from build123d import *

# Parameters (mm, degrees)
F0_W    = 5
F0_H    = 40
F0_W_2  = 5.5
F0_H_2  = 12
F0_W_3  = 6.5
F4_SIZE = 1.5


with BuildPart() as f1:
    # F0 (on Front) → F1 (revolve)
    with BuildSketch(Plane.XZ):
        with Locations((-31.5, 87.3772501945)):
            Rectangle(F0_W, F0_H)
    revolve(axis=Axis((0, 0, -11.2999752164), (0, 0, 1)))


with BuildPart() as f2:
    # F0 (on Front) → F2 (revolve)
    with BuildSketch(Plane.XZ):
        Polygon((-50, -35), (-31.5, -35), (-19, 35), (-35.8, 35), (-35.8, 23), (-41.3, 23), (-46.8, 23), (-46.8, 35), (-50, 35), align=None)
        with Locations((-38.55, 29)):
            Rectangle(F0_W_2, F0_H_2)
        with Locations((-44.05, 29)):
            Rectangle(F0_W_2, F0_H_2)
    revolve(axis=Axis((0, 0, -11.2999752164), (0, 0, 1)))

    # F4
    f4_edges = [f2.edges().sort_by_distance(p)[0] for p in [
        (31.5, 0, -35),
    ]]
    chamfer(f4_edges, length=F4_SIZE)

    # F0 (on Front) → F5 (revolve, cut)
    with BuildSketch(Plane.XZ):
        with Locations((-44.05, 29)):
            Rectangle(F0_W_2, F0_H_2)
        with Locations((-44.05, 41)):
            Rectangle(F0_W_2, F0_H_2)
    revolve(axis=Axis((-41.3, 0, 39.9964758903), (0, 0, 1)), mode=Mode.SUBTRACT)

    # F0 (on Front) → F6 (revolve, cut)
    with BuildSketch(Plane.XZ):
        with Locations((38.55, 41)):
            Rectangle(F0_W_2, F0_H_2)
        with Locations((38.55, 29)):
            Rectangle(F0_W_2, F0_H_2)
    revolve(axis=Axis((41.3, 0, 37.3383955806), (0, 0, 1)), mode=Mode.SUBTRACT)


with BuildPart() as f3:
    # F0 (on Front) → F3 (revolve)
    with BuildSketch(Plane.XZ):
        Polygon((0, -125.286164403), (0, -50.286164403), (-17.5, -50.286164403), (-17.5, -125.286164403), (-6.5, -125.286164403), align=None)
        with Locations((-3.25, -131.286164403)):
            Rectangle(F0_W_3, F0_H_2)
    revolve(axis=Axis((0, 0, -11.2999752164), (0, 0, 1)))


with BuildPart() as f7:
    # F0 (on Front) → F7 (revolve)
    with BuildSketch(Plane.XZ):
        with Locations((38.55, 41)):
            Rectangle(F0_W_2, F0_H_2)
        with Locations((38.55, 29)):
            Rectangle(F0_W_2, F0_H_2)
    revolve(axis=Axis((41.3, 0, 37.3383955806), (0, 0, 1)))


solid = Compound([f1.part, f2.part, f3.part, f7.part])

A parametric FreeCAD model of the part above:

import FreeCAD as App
import Part
import Sketcher

V = App.Vector


def edges_at(feature, points):
    """Names of the edges that pass closest to the given points."""
    edges = feature.Shape.Edges
    near = lambda p: min(range(len(edges)), key=lambda i: edges[i].distToShape(Part.Vertex(*p))[0])
    return sorted({f"Edge{near(p) + 1}" for p in points})

doc = App.newDocument("Part")
body = doc.addObject("PartDesign::Body", "Body")

sketch1 = body.newObject("Sketcher::SketchObject", "Sketch")
sketch1.AttachmentSupport = (doc.getObject("XZ_Plane"), [""])
sketch1.MapMode = "FlatFace"
sketch1.addGeometry(Part.LineSegment(V(-34, 107, 0), V(-34, 67, 0)), False)
sketch1.addGeometry(Part.LineSegment(V(-34, 67, 0), V(-29, 67, 0)), False)
sketch1.addGeometry(Part.LineSegment(V(-29, 67, 0), V(-29, 107, 0)), False)
sketch1.addGeometry(Part.LineSegment(V(-29, 107, 0), V(-34, 107, 0)), False)
sketch1.addConstraint(Sketcher.Constraint("Coincident", 0, 2, 1, 1))
sketch1.addConstraint(Sketcher.Constraint("Coincident", 1, 2, 2, 1))
sketch1.addConstraint(Sketcher.Constraint("Coincident", 2, 2, 3, 1))
sketch1.addConstraint(Sketcher.Constraint("Coincident", 3, 2, 0, 1))
sketch1.addConstraint(Sketcher.Constraint("Vertical", 0))
sketch1.addConstraint(Sketcher.Constraint("Horizontal", 1))
sketch1.addConstraint(Sketcher.Constraint("Vertical", 2))
sketch1.addConstraint(Sketcher.Constraint("Horizontal", 3))
sketch1.addConstraint(Sketcher.Constraint("DistanceX", 1, 1, 1, 2, 5.0))
sketch1.addConstraint(Sketcher.Constraint("DistanceY", 0, 2, 0, 1, 40.0))
sketch1.addConstraint(Sketcher.Constraint("DistanceX", 0, 2, -1, 1, 34.0))
sketch1.addConstraint(Sketcher.Constraint("DistanceY", -1, 1, 0, 2, 67.37725))
revolution = body.newObject("PartDesign::Revolution", "Revolution")
revolution.Profile = sketch1
revolution.ReferenceAxis = (sketch1, ["V_Axis"])
revolution.Angle = 360
body2 = doc.addObject("PartDesign::Body", "Body001")

sketch2 = body2.newObject("Sketcher::SketchObject", "Sketch001")
sketch2.AttachmentSupport = (doc.getObject("XZ_Plane001"), [""])
sketch2.MapMode = "FlatFace"
sketch2.addGeometry(Part.LineSegment(V(-50, -35, 0), V(-32, -35, 0)), False)
sketch2.addGeometry(Part.LineSegment(V(-32, -35, 0), V(-19, 35, 0)), False)
sketch2.addGeometry(Part.LineSegment(V(-19, 35, 0), V(-50, 35, 0)), False)
sketch2.addGeometry(Part.LineSegment(V(-50, 35, 0), V(-50, -35, 0)), False)
sketch2.addConstraint(Sketcher.Constraint("Coincident", 0, 2, 1, 1))
sketch2.addConstraint(Sketcher.Constraint("Coincident", 1, 2, 2, 1))
sketch2.addConstraint(Sketcher.Constraint("Coincident", 2, 2, 3, 1))
sketch2.addConstraint(Sketcher.Constraint("Coincident", 3, 2, 0, 1))
sketch2.addConstraint(Sketcher.Constraint("Horizontal", 0))
sketch2.addConstraint(Sketcher.Constraint("Horizontal", 2))
sketch2.addConstraint(Sketcher.Constraint("Vertical", 3))
sketch2.addConstraint(Sketcher.Constraint("DistanceX", 2, 2, 2, 1, 31.0))
sketch2.addConstraint(Sketcher.Constraint("DistanceY", 3, 2, 3, 1, 70.0))
sketch2.addConstraint(Sketcher.Constraint("DistanceX", 0, 1, 0, 2, 18.5))
sketch2.addConstraint(Sketcher.Constraint("DistanceY", 0, 2, -1, 1, 35.0))
sketch2.addConstraint(Sketcher.Constraint("DistanceX", 1, 2, -1, 1, 19.0))
revolution2 = body2.newObject("PartDesign::Revolution", "Revolution001")
revolution2.Profile = sketch2
revolution2.ReferenceAxis = (sketch2, ["V_Axis"])
revolution2.Angle = 360
doc.recompute()

chamfer = body2.newObject("PartDesign::Chamfer", "Chamfer")
chamfer.Base = (revolution2, edges_at(revolution2, [(31.5, 0, -35)]))
chamfer.Size = 1.5

sketch3 = body2.newObject("Sketcher::SketchObject", "Sketch002")
sketch3.AttachmentSupport = (doc.getObject("XZ_Plane001"), [""])
sketch3.MapMode = "FlatFace"
sketch3.addGeometry(Part.LineSegment(V(-47, 23, 0), V(-41, 23, 0)), False)
sketch3.addGeometry(Part.LineSegment(V(-41, 23, 0), V(-41, 47, 0)), False)
sketch3.addGeometry(Part.LineSegment(V(-41, 47, 0), V(-47, 47, 0)), False)
sketch3.addGeometry(Part.LineSegment(V(-47, 47, 0), V(-47, 23, 0)), False)
sketch3.addGeometry(Part.LineSegment(V(-41, 23, 0), V(-41, 47, 0)), True)
sketch3.addConstraint(Sketcher.Constraint("Coincident", 0, 2, 1, 1))
sketch3.addConstraint(Sketcher.Constraint("Coincident", 1, 2, 2, 1))
sketch3.addConstraint(Sketcher.Constraint("Coincident", 2, 2, 3, 1))
sketch3.addConstraint(Sketcher.Constraint("Coincident", 3, 2, 0, 1))
sketch3.addConstraint(Sketcher.Constraint("Horizontal", 0))
sketch3.addConstraint(Sketcher.Constraint("Vertical", 1))
sketch3.addConstraint(Sketcher.Constraint("Horizontal", 2))
sketch3.addConstraint(Sketcher.Constraint("Vertical", 3))
sketch3.addConstraint(Sketcher.Constraint("Vertical", 4))
sketch3.addConstraint(Sketcher.Constraint("Coincident", 4, 1, 0, 2))
sketch3.addConstraint(Sketcher.Constraint("Horizontal", 2, 2, 4, 2))
sketch3.addConstraint(Sketcher.Constraint("DistanceY", 1, 1, 1, 2, 24.0))
sketch3.addConstraint(Sketcher.Constraint("DistanceX", 0, 1, 0, 2, 5.5))
sketch3.addConstraint(Sketcher.Constraint("DistanceY", -1, 1, 0, 2, 23.0))
sketch3.addConstraint(Sketcher.Constraint("DistanceX", 0, 2, -1, 1, 41.3))
groove = body2.newObject("PartDesign::Groove", "Groove")
groove.Profile = sketch3
groove.ReferenceAxis = (sketch3, ["Axis0"])
groove.Angle = 360

sketch4 = body2.newObject("Sketcher::SketchObject", "Sketch003")
sketch4.AttachmentSupport = (doc.getObject("XZ_Plane001"), [""])
sketch4.MapMode = "FlatFace"
sketch4.addGeometry(Part.LineSegment(V(36, 47, 0), V(36, 23, 0)), False)
sketch4.addGeometry(Part.LineSegment(V(36, 23, 0), V(41, 23, 0)), False)
sketch4.addGeometry(Part.LineSegment(V(41, 23, 0), V(41, 47, 0)), False)
sketch4.addGeometry(Part.LineSegment(V(41, 47, 0), V(36, 47, 0)), False)
sketch4.addGeometry(Part.LineSegment(V(41, 23, 0), V(41, 47, 0)), True)
sketch4.addConstraint(Sketcher.Constraint("Coincident", 0, 2, 1, 1))
sketch4.addConstraint(Sketcher.Constraint("Coincident", 1, 2, 2, 1))
sketch4.addConstraint(Sketcher.Constraint("Coincident", 2, 2, 3, 1))
sketch4.addConstraint(Sketcher.Constraint("Coincident", 3, 2, 0, 1))
sketch4.addConstraint(Sketcher.Constraint("Vertical", 0))
sketch4.addConstraint(Sketcher.Constraint("Horizontal", 1))
sketch4.addConstraint(Sketcher.Constraint("Vertical", 2))
sketch4.addConstraint(Sketcher.Constraint("Horizontal", 3))
sketch4.addConstraint(Sketcher.Constraint("Vertical", 4))
sketch4.addConstraint(Sketcher.Constraint("Coincident", 4, 1, 1, 2))
sketch4.addConstraint(Sketcher.Constraint("Horizontal", 3, 2, 4, 2))
sketch4.addConstraint(Sketcher.Constraint("DistanceY", 0, 2, 0, 1, 24.0))
sketch4.addConstraint(Sketcher.Constraint("DistanceX", 1, 1, 1, 2, 5.5))
sketch4.addConstraint(Sketcher.Constraint("DistanceY", -1, 1, 0, 2, 23.0))
sketch4.addConstraint(Sketcher.Constraint("DistanceX", -1, 1, 0, 2, 35.8))
groove2 = body2.newObject("PartDesign::Groove", "Groove001")
groove2.Profile = sketch4
groove2.ReferenceAxis = (sketch4, ["Axis0"])
groove2.Angle = 360
body3 = doc.addObject("PartDesign::Body", "Body002")

sketch5 = body3.newObject("Sketcher::SketchObject", "Sketch004")
sketch5.AttachmentSupport = (doc.getObject("XZ_Plane002"), [""])
sketch5.MapMode = "FlatFace"
sketch5.addGeometry(Part.LineSegment(V(0, -50, 0), V(-18, -50, 0)), False)
sketch5.addGeometry(Part.LineSegment(V(-18, -50, 0), V(-18, -125, 0)), False)
sketch5.addGeometry(Part.LineSegment(V(-18, -125, 0), V(-6, -125, 0)), False)
sketch5.addGeometry(Part.LineSegment(V(-6, -125, 0), V(-6, -137, 0)), False)
sketch5.addGeometry(Part.LineSegment(V(-6, -137, 0), V(0, -137, 0)), False)
sketch5.addGeometry(Part.LineSegment(V(0, -137, 0), V(0, -50, 0)), False)
sketch5.addConstraint(Sketcher.Constraint("Coincident", 0, 2, 1, 1))
sketch5.addConstraint(Sketcher.Constraint("Coincident", 1, 2, 2, 1))
sketch5.addConstraint(Sketcher.Constraint("Coincident", 2, 2, 3, 1))
sketch5.addConstraint(Sketcher.Constraint("Coincident", 3, 2, 4, 1))
sketch5.addConstraint(Sketcher.Constraint("Coincident", 4, 2, 5, 1))
sketch5.addConstraint(Sketcher.Constraint("Coincident", 5, 2, 0, 1))
sketch5.addConstraint(Sketcher.Constraint("Horizontal", 0))
sketch5.addConstraint(Sketcher.Constraint("Vertical", 1))
sketch5.addConstraint(Sketcher.Constraint("Horizontal", 2))
sketch5.addConstraint(Sketcher.Constraint("Vertical", 3))
sketch5.addConstraint(Sketcher.Constraint("Horizontal", 4))
sketch5.addConstraint(Sketcher.Constraint("Vertical", 5))
sketch5.addConstraint(Sketcher.Constraint("PointOnObject", 4, 2, -2))
sketch5.addConstraint(Sketcher.Constraint("DistanceX", 2, 1, 2, 2, 11.0))
sketch5.addConstraint(Sketcher.Constraint("DistanceY", 1, 2, 1, 1, 75.0))
sketch5.addConstraint(Sketcher.Constraint("DistanceY", 3, 2, 3, 1, 12.0))
sketch5.addConstraint(Sketcher.Constraint("DistanceX", 0, 2, 0, 1, 17.5))
sketch5.addConstraint(Sketcher.Constraint("DistanceY", 0, 2, -1, 1, 50.286164))
revolution3 = body3.newObject("PartDesign::Revolution", "Revolution002")
revolution3.Profile = sketch5
revolution3.ReferenceAxis = (sketch5, ["V_Axis"])
revolution3.Angle = 360
body4 = doc.addObject("PartDesign::Body", "Body003")

sketch6 = body4.newObject("Sketcher::SketchObject", "Sketch005")
sketch6.AttachmentSupport = (doc.getObject("XZ_Plane003"), [""])
sketch6.MapMode = "FlatFace"
sketch6.addGeometry(Part.LineSegment(V(36, 47, 0), V(36, 23, 0)), False)
sketch6.addGeometry(Part.LineSegment(V(36, 23, 0), V(41, 23, 0)), False)
sketch6.addGeometry(Part.LineSegment(V(41, 23, 0), V(41, 47, 0)), False)
sketch6.addGeometry(Part.LineSegment(V(41, 47, 0), V(36, 47, 0)), False)
sketch6.addGeometry(Part.LineSegment(V(41, 23, 0), V(41, 47, 0)), True)
sketch6.addConstraint(Sketcher.Constraint("Coincident", 0, 2, 1, 1))
sketch6.addConstraint(Sketcher.Constraint("Coincident", 1, 2, 2, 1))
sketch6.addConstraint(Sketcher.Constraint("Coincident", 2, 2, 3, 1))
sketch6.addConstraint(Sketcher.Constraint("Coincident", 3, 2, 0, 1))
sketch6.addConstraint(Sketcher.Constraint("Vertical", 0))
sketch6.addConstraint(Sketcher.Constraint("Horizontal", 1))
sketch6.addConstraint(Sketcher.Constraint("Vertical", 2))
sketch6.addConstraint(Sketcher.Constraint("Horizontal", 3))
sketch6.addConstraint(Sketcher.Constraint("Vertical", 4))
sketch6.addConstraint(Sketcher.Constraint("Coincident", 4, 1, 1, 2))
sketch6.addConstraint(Sketcher.Constraint("Horizontal", 3, 2, 4, 2))
sketch6.addConstraint(Sketcher.Constraint("DistanceY", 0, 2, 0, 1, 24.0))
sketch6.addConstraint(Sketcher.Constraint("DistanceX", 1, 1, 1, 2, 5.5))
sketch6.addConstraint(Sketcher.Constraint("DistanceY", -1, 1, 0, 2, 23.0))
sketch6.addConstraint(Sketcher.Constraint("DistanceX", -1, 1, 0, 2, 35.8))
revolution4 = body4.newObject("PartDesign::Revolution", "Revolution003")
revolution4.Profile = sketch6
revolution4.ReferenceAxis = (sketch6, ["Axis0"])
revolution4.Angle = 360

doc.recompute()
